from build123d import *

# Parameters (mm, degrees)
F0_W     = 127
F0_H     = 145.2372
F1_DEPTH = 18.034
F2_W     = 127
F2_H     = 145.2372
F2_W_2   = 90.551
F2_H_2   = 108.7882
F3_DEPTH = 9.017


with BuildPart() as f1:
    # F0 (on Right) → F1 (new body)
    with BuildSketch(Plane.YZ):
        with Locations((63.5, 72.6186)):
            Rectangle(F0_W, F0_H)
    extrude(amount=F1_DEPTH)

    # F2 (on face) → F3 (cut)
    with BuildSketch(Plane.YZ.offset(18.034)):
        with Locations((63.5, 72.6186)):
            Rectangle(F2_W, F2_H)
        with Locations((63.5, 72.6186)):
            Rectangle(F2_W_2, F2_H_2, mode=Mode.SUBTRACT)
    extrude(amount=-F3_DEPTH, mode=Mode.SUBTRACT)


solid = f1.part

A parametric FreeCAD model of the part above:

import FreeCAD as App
import Part
import Sketcher
Q = App.Units.Quantity


def add_polygon(sketch, points):
    """Adds a closed chain of lines whose ends are joined by coincident constraints."""
    first, n = sketch.GeometryCount, len(points)
    for a, b in zip(points, points[1:] + points[:1]):
        sketch.addGeometry(Part.LineSegment(App.Vector(*a, 0), App.Vector(*b, 0)), False)
    for i in range(n):
        sketch.addConstraint(Sketcher.Constraint("Coincident", first + i, 2, first + (i + 1) % n, 1))

doc = App.newDocument("Part")
body = doc.addObject("PartDesign::Body", "Body")

# Sketch on YZ plane
sketch1 = body.newObject("Sketcher::SketchObject", "Sketch")
sketch1.AttachmentSupport = (doc.getObject("YZ_Plane"), [""])
sketch1.MapMode = "FlatFace"
add_polygon(sketch1, [(0, 145.2372), (0, 0), (127, 0), (127, 145.2372)])  # lines 0-3
sketch1.addConstraint([
    Sketcher.Constraint("Vertical", 0),
    Sketcher.Constraint("Horizontal", 1),
    Sketcher.Constraint("Vertical", 2),
    Sketcher.Constraint("Horizontal", 3),
    Sketcher.Constraint("Coincident", 0, 2, -1, 1),
    Sketcher.Constraint("DistanceX", 1, 1, 1, 2, Q("5 in")),
    Sketcher.Constraint("DistanceY", 0, 2, 0, 1, Q("5.718 in")),
])
pad1 = body.newObject("PartDesign::Pad", "Pad")
pad1.Profile = sketch1
pad1.Length = Q("0.71 in")

# Sketch on YZ plane
sketch2 = body.newObject("Sketcher::SketchObject", "Sketch001")
sketch2.AttachmentSupport = (doc.getObject("YZ_Plane"), [""])
sketch2.MapMode = "FlatFace"
sketch2.AttachmentOffset = App.Placement(App.Vector(0, 0, 0.71 * 25.4), App.Rotation())
add_polygon(sketch2, [(0, 145.2372), (0, 0), (127, 0), (127, 145.2372)])  # lines 0-3
add_polygon(sketch2, [(108.7755, 18.2245), (18.2245, 18.2245), (18.2245, 127.0127), (108.7755, 127.0127)])  # lines 4-7
sketch2.addConstraint([
    Sketcher.Constraint("Vertical", 0),
    Sketcher.Constraint("Horizontal", 1),
    Sketcher.Constraint("Vertical", 2),
    Sketcher.Constraint("Horizontal", 3),
    Sketcher.Constraint("Horizontal", 4),
    Sketcher.Constraint("Vertical", 5),
    Sketcher.Constraint("Horizontal", 6),
    Sketcher.Constraint("Vertical", 7),
    Sketcher.Constraint("Coincident", 0, 2, -1, 1),
    Sketcher.Constraint("DistanceX", 1, 1, 1, 2, Q("5 in")),
    Sketcher.Constraint("DistanceX", 4, 2, 4, 1, Q("3.565 in")),
    Sketcher.Constraint("DistanceY", 0, 2, 0, 1, Q("5.718 in")),
    Sketcher.Constraint("DistanceY", 5, 1, 5, 2, Q("4.283 in")),
    Sketcher.Constraint("DistanceX", -1, 1, 4, 2, Q("0.7175 in")),
    Sketcher.Constraint("DistanceY", -1, 1, 4, 2, Q("0.7175 in")),
])
pocket1 = body.newObject("PartDesign::Pocket", "Pocket")
pocket1.Profile = sketch2
pocket1.Length = Q("0.355 in")

doc.recompute()
